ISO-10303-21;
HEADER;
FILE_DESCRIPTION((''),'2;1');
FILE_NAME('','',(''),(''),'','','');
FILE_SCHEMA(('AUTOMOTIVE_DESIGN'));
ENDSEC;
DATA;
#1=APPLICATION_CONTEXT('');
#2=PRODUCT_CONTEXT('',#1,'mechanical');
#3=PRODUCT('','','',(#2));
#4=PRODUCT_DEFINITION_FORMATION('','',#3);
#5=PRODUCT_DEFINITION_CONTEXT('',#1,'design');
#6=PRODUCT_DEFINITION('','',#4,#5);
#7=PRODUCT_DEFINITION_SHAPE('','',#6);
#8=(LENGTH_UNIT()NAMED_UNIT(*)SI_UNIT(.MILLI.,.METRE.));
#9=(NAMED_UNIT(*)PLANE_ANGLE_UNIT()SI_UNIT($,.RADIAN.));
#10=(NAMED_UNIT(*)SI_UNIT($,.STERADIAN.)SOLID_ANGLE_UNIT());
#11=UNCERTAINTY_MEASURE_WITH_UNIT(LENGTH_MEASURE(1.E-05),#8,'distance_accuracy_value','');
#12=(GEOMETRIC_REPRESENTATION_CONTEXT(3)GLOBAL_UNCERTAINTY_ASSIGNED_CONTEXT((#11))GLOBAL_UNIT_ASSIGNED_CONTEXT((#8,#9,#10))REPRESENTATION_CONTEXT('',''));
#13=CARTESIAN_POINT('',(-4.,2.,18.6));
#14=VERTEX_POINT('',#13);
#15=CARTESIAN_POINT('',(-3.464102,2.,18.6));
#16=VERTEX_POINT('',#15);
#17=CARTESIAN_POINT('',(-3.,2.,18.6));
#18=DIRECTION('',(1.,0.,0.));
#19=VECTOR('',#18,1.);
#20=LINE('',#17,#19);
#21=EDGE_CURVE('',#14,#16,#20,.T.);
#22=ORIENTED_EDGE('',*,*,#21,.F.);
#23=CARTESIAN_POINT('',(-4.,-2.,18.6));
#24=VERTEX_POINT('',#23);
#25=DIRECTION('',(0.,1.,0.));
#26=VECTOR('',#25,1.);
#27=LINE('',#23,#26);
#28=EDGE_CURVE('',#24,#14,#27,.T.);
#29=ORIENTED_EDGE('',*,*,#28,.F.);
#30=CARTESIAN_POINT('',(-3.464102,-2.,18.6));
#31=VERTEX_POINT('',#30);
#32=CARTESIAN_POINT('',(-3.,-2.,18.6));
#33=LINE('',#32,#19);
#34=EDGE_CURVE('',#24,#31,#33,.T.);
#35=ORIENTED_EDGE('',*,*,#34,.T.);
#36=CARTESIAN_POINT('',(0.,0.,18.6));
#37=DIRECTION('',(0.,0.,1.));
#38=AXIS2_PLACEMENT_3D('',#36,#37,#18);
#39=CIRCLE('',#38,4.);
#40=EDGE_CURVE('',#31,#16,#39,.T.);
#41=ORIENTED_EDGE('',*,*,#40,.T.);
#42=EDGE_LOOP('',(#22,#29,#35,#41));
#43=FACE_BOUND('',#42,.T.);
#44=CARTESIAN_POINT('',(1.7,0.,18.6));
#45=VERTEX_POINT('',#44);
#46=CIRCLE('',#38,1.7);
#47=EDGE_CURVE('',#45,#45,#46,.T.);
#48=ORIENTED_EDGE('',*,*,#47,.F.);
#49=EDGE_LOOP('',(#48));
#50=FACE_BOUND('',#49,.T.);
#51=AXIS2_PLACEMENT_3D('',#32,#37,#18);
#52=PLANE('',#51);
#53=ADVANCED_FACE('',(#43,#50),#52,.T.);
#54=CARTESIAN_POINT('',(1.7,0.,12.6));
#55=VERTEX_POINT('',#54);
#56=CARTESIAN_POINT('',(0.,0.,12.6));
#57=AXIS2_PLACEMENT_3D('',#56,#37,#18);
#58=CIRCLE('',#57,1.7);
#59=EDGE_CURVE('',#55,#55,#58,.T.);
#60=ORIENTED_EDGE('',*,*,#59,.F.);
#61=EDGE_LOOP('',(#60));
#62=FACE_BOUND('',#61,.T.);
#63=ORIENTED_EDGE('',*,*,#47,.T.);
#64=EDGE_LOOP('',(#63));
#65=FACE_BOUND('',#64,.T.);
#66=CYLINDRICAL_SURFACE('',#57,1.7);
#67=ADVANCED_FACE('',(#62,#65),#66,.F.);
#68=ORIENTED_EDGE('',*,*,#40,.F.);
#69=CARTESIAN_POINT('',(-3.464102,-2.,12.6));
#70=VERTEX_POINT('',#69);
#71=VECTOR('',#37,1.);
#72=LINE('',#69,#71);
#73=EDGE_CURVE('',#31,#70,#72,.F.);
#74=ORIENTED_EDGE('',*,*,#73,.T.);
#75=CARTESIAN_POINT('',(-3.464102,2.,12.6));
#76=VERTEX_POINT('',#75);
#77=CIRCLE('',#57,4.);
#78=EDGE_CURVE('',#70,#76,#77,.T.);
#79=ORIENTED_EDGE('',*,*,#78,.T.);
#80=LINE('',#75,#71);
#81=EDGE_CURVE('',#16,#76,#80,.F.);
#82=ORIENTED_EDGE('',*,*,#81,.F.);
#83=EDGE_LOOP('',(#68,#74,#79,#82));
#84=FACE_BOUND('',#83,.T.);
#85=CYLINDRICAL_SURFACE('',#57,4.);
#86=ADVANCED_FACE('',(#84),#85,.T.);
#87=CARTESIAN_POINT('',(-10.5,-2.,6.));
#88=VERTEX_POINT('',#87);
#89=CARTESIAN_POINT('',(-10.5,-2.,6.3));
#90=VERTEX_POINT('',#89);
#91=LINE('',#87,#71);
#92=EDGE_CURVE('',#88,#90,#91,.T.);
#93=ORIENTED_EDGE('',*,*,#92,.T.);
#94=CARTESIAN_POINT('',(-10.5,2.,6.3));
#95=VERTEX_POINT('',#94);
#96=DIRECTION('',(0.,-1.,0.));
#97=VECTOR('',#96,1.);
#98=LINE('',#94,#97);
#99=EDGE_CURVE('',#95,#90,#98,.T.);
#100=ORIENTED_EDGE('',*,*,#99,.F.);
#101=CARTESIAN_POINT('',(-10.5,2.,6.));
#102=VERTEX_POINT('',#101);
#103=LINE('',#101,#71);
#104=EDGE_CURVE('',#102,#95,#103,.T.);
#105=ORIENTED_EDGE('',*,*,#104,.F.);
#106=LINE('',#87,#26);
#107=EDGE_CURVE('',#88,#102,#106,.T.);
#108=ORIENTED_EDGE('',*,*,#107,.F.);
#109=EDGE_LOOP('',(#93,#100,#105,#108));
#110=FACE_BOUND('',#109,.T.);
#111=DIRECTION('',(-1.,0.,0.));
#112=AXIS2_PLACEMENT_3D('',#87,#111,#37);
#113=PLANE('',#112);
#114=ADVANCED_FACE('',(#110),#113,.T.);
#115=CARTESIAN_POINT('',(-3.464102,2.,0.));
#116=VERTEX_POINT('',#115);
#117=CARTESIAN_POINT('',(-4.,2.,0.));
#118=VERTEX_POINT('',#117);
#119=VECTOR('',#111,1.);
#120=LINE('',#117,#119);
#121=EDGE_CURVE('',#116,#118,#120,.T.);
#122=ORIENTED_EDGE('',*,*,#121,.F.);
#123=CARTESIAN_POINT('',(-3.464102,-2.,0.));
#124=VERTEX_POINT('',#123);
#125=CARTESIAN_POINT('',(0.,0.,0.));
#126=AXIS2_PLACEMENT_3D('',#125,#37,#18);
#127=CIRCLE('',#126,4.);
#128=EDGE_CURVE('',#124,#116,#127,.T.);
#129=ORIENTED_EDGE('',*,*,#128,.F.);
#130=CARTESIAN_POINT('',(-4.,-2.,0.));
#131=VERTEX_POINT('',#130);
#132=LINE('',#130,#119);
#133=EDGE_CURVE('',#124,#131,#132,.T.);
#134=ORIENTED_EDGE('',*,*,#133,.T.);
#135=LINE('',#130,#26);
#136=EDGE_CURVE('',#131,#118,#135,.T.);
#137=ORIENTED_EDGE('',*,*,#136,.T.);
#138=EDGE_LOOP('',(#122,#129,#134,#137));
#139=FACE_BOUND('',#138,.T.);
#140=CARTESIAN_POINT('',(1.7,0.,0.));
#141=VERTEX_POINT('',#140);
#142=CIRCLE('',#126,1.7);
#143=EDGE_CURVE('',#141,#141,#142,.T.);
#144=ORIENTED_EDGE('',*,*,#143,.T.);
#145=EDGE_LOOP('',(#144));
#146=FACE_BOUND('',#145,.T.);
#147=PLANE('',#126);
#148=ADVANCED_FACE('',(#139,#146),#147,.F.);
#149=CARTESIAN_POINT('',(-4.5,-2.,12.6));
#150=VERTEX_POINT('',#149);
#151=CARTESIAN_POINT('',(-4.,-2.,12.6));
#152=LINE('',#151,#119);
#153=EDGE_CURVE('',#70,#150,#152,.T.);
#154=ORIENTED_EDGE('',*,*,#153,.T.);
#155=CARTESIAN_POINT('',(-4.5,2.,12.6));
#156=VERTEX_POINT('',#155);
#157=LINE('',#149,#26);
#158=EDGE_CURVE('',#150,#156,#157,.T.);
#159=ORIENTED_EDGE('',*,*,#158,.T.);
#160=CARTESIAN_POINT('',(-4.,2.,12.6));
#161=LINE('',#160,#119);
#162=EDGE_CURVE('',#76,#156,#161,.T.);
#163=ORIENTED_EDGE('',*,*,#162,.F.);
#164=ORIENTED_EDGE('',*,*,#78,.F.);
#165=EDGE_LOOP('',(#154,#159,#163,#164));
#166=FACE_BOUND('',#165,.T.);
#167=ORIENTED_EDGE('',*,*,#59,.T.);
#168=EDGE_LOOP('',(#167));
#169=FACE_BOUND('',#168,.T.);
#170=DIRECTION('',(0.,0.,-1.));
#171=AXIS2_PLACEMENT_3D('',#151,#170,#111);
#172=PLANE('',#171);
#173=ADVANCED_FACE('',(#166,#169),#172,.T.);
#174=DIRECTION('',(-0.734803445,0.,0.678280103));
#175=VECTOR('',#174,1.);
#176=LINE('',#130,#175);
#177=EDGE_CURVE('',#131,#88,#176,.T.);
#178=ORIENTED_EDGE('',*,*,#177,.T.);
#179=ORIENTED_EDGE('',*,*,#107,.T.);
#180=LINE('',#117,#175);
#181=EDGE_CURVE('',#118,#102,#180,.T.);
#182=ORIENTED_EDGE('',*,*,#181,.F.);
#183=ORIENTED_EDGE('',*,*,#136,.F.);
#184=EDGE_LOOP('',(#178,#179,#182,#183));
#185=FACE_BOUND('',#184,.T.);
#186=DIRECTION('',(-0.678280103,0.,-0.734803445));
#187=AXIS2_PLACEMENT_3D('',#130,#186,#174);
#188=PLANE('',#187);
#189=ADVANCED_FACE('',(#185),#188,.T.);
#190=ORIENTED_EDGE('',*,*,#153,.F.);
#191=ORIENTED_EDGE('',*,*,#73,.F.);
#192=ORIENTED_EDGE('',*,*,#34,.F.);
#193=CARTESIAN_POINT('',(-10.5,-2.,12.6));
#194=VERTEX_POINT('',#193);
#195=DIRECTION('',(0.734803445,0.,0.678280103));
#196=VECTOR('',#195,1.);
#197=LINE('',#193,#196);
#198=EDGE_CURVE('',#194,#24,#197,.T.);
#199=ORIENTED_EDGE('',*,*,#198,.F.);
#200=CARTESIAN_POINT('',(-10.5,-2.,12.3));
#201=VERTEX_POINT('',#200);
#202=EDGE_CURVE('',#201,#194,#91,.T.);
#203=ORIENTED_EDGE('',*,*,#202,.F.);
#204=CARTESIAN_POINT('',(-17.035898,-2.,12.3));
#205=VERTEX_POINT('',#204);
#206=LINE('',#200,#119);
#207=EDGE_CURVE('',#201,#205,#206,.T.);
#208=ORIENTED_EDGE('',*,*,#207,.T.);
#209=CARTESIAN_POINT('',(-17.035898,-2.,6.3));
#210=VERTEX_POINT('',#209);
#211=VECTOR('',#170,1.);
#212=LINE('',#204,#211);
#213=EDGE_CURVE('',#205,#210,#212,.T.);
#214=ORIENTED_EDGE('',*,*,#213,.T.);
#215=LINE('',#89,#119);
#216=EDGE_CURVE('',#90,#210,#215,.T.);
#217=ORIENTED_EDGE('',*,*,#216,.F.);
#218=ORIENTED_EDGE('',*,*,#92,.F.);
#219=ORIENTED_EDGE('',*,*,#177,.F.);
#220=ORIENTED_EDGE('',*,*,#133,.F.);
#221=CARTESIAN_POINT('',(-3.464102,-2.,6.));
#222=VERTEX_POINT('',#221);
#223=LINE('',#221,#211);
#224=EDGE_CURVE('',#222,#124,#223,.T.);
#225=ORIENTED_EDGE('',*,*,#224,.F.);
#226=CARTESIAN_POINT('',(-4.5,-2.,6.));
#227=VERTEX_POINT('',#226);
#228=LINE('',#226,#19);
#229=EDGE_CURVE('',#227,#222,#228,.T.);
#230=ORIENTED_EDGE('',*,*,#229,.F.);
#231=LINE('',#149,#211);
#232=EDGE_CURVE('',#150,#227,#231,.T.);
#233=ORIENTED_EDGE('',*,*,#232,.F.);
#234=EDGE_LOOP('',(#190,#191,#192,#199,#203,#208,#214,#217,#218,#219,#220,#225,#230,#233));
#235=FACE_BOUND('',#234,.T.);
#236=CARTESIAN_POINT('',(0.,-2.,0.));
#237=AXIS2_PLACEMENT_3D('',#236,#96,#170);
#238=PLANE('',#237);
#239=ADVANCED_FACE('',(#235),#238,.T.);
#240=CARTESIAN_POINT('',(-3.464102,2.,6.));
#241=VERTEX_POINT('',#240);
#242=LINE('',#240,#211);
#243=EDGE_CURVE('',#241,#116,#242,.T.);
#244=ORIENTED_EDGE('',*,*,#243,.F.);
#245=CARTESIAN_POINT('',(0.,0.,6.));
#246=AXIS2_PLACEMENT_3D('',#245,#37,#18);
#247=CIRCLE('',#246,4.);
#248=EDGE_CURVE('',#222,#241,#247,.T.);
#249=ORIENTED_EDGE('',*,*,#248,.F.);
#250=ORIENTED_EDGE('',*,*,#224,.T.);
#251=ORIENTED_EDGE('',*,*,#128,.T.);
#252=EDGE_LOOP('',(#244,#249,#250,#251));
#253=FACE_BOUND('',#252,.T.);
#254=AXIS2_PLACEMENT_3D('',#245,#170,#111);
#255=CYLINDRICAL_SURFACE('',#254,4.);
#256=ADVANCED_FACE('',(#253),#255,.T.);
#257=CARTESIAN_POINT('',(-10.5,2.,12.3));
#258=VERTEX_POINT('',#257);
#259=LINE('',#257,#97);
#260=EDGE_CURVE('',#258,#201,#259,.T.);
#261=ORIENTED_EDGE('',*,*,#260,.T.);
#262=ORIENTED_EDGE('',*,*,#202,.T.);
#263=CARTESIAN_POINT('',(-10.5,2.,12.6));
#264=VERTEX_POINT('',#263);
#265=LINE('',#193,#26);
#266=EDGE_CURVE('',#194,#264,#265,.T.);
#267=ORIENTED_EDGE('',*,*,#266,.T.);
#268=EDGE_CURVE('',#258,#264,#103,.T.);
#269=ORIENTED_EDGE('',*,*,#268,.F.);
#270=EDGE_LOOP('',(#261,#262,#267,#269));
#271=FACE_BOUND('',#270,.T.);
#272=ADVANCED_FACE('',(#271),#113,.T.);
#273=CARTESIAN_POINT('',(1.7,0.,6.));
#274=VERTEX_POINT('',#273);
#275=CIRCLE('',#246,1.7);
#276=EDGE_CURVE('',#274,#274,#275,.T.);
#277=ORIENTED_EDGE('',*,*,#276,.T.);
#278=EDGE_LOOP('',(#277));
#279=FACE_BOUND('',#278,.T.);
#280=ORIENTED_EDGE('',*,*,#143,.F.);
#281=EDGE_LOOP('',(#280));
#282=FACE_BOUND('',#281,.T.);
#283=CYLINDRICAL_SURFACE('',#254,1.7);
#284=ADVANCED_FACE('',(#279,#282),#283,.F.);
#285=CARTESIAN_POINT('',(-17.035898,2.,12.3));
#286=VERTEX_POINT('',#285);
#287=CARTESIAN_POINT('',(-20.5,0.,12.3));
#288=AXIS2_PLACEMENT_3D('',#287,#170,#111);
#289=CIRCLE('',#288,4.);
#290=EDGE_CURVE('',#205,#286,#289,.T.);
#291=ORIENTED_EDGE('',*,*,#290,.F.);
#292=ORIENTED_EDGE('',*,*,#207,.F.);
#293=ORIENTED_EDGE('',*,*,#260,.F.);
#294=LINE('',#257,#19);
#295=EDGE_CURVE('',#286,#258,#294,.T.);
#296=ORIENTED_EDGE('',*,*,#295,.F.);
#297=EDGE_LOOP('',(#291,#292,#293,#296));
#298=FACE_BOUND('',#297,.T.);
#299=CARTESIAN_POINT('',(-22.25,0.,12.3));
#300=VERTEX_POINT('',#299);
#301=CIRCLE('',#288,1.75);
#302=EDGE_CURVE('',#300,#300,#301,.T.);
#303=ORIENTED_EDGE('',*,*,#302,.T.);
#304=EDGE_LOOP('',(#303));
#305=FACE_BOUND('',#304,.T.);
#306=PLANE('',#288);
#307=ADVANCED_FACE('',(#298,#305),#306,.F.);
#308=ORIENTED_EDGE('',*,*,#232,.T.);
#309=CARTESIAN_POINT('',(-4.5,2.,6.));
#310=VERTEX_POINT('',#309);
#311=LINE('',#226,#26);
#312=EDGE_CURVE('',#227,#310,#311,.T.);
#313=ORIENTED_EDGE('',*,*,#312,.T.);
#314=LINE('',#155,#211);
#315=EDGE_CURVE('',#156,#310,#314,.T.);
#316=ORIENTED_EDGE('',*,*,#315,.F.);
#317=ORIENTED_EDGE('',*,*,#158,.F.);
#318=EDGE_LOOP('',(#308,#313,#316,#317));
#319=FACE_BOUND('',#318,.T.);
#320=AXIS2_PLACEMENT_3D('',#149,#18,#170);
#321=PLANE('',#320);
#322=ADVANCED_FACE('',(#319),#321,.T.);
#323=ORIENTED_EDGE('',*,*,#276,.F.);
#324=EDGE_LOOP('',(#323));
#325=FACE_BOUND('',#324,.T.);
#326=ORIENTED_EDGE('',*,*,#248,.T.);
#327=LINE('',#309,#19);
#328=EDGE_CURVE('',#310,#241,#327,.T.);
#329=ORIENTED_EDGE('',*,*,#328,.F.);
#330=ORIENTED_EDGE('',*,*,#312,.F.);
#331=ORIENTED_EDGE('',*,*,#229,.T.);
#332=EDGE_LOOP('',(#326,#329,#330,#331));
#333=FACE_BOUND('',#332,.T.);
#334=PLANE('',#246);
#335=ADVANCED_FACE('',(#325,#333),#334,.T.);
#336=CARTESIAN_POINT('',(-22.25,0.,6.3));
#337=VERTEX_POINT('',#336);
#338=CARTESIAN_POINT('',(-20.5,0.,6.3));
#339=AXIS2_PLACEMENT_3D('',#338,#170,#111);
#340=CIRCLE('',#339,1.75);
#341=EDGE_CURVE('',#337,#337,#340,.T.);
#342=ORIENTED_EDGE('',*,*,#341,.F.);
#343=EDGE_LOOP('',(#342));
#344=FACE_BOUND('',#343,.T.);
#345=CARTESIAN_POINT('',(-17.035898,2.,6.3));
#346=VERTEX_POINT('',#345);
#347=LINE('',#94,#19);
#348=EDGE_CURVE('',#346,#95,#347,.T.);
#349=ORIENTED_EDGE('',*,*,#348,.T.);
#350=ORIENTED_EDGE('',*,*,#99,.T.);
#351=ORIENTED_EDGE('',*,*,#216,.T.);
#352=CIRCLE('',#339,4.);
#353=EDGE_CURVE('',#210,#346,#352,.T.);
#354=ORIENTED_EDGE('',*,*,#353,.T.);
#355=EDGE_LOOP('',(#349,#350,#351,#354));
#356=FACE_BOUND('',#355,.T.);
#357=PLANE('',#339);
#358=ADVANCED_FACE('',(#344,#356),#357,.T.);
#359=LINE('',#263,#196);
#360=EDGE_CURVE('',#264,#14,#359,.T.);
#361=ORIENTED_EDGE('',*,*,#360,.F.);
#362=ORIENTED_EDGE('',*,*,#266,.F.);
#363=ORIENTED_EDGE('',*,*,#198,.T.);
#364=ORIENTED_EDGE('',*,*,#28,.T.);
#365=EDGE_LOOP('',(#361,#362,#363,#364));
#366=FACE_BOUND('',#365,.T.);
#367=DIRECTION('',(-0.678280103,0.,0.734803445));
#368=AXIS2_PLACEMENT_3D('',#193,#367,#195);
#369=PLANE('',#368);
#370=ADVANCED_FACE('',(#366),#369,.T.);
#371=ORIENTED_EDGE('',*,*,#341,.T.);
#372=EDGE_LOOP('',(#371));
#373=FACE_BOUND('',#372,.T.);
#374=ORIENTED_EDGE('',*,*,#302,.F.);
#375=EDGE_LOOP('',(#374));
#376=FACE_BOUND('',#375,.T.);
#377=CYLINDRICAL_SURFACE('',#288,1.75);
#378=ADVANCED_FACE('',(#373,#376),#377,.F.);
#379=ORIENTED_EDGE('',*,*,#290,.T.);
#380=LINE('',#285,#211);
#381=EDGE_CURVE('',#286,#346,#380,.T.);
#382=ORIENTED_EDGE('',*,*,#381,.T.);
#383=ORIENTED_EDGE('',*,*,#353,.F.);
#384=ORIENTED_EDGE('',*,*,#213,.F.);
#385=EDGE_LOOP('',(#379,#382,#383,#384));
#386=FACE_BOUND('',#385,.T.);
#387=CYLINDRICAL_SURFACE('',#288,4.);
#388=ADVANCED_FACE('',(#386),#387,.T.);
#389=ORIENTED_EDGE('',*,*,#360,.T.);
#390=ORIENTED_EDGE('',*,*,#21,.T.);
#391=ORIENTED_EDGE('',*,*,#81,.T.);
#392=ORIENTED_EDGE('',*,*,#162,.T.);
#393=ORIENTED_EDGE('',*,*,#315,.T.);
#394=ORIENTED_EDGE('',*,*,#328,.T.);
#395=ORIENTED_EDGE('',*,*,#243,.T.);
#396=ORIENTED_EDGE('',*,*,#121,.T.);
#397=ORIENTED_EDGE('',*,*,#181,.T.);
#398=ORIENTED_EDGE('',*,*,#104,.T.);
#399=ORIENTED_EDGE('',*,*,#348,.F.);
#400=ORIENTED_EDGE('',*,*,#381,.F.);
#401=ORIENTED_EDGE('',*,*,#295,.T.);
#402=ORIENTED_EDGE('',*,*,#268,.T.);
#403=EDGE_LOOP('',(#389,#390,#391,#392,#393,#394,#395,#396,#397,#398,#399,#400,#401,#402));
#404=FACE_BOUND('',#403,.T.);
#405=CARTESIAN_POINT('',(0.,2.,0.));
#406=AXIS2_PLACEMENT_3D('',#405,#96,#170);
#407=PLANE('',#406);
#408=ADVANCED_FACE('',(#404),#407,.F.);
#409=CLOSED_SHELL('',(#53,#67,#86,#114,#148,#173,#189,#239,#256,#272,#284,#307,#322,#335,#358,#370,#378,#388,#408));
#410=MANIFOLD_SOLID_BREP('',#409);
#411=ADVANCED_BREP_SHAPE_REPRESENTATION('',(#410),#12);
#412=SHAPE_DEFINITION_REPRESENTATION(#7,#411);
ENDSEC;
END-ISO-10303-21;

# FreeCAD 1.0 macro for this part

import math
import FreeCAD as App
import Part
import Sketcher


def add_polygon(sketch, points):
    """Adds a closed chain of lines whose ends are joined by coincident constraints."""
    first, n = sketch.GeometryCount, len(points)
    for a, b in zip(points, points[1:] + points[:1]):
        sketch.addGeometry(Part.LineSegment(App.Vector(*a, 0), App.Vector(*b, 0)), False)
    for i in range(n):
        sketch.addConstraint(Sketcher.Constraint("Coincident", first + i, 2, first + (i + 1) % n, 1))

doc = App.newDocument("Part")
body = doc.addObject("PartDesign::Body", "Body")

sketch1 = body.newObject("Sketcher::SketchObject", "Sketch")
sketch1.AttachmentSupport = (doc.getObject("XY_Plane"), [""])
sketch1.MapMode = "FlatFace"
sketch1.addGeometry([
    Part.Circle(App.Vector(0, 0, 0), App.Vector(0, 0, 1), 4),
    Part.Circle(App.Vector(0, 0, 0), App.Vector(0, 0, 1), 1.7),
], False)
sketch1.addConstraint([
    Sketcher.Constraint("Coincident", 0, 3, -1, 1),
    Sketcher.Constraint("Coincident", 1, 3, -1, 1),
    Sketcher.Constraint("Diameter", 0, 8.0),
    Sketcher.Constraint("Diameter", 1, 3.4),
])
pad1 = body.newObject("PartDesign::Pad", "Pad")
pad1.Profile = sketch1
pad1.Length = 6

sketch2 = body.newObject("Sketcher::SketchObject", "Sketch001")
sketch2.AttachmentSupport = (doc.getObject("XZ_Plane"), [""])
sketch2.MapMode = "FlatFace"
add_polygon(sketch2, [(-4, 0), (-10.5, 6), (-10.5, 12.6), (-4, 18.6), (-3, 18.6), (-3, 12.6), (-4.5, 12.6), (-4.5, 6), (-3, 6), (-3, 0)])
sketch2.addConstraint([
    Sketcher.Constraint("Vertical", 1),
    Sketcher.Constraint("Horizontal", 3),
    Sketcher.Constraint("Vertical", 4),
    Sketcher.Constraint("Horizontal", 5),
    Sketcher.Constraint("Vertical", 6),
    Sketcher.Constraint("Horizontal", 7),
    Sketcher.Constraint("Vertical", 8),
    Sketcher.Constraint("Horizontal", 9),
    Sketcher.Constraint("PointOnObject", 8, 2, -1),
    Sketcher.Constraint("Horizontal", 1, 2, 4, 2),
    Sketcher.Constraint("Horizontal", 0, 2, 6, 2),
    Sketcher.Constraint("Vertical", 4, 2, 7, 2),
    Sketcher.Constraint("Vertical", 2, 2, 9, 2),
    Sketcher.Constraint("Equal", 4, 8),
    Sketcher.Constraint("DistanceX", 3, 1, 3, 2, 1.0),
    Sketcher.Constraint("DistanceY", 4, 2, 4, 1, 6.0),
    Sketcher.Constraint("DistanceX", 5, 2, 5, 1, 1.5),
    Sketcher.Constraint("DistanceY", 1, 1, 1, 2, 6.6),
    Sketcher.Constraint("DistanceX", 2, 2, -1, 1, 4.0),
    Sketcher.Constraint("DistanceX", 1, 2, 5, 2, 6.0),
])
pad2 = body.newObject("PartDesign::Pad", "Pad001")
pad2.Profile = sketch2
pad2.Type = "TwoLengths"
pad2.Length = 2
pad2.Length2 = 2
pad2.Reversed = True
doc.recompute()

datumplane = body.newObject("PartDesign::Plane", "DatumPlane")
datumplane.AttachmentSupport = (doc.getObject("XY_Plane"), [""])
datumplane.MapMode = "FlatFace"
datumplane.AttachmentOffset = App.Placement(App.Vector(0, 0, 9.3), App.Rotation())
mirrored = body.newObject("PartDesign::Mirrored", "Mirrored")
mirrored.Originals = [pad1]
mirrored.MirrorPlane = (datumplane, [""])
body.Tip = mirrored

sketch3 = body.newObject("Sketcher::SketchObject", "Sketch002")
sketch3.AttachmentSupport = (doc.getObject("XY_Plane"), [""])
sketch3.MapMode = "FlatFace"
sketch3.AttachmentOffset = App.Placement(App.Vector(0, 0, 9.3), App.Rotation())
sketch3.addGeometry([
    Part.LineSegment(App.Vector(-17, 2, 0), App.Vector(-10.5, 2, 0)),
    Part.LineSegment(App.Vector(-10.5, 2, 0), App.Vector(-10.5, -2, 0)),
    Part.LineSegment(App.Vector(-10.5, -2, 0), App.Vector(-17, -2, 0)),
    Part.ArcOfCircle(Part.Circle(App.Vector(-20.5, 0, 0), App.Vector(0, 0, 1), 4), math.radians(30), math.radians(330)),
    Part.Circle(App.Vector(-20.5, 0, 0), App.Vector(0, 0, 1), 1.8),
], False)
sketch3.addConstraint([
    Sketcher.Constraint("Coincident", 0, 2, 1, 1),
    Sketcher.Constraint("Coincident", 1, 2, 2, 1),
    Sketcher.Constraint("Coincident", 2, 2, 3, 2),
    Sketcher.Constraint("Coincident", 3, 1, 0, 1),
    Sketcher.Constraint("Horizontal", 0),
    Sketcher.Constraint("Vertical", 1),
    Sketcher.Constraint("Horizontal", 2),
    Sketcher.Constraint("Coincident", 4, 3, 3, 3),
    Sketcher.Constraint("Symmetric", 2, 2, 3, 1, -1),
    Sketcher.Constraint("Radius", 3, 4.0),
    Sketcher.Constraint("Diameter", 4, 3.5),
    Sketcher.Constraint("DistanceY", 1, 2, 1, 1, 4.0),
    Sketcher.Constraint("DistanceX", 3, 3, 0, 2, 10.0),
    Sketcher.Constraint("DistanceX", 3, 3, -1, 1, 20.5),
])
pad3 = body.newObject("PartDesign::Pad", "Pad002")
pad3.Profile = sketch3
pad3.Type = "TwoLengths"
pad3.Length = 3
pad3.Length2 = 3
pad3.Reversed = True

doc.recompute()
